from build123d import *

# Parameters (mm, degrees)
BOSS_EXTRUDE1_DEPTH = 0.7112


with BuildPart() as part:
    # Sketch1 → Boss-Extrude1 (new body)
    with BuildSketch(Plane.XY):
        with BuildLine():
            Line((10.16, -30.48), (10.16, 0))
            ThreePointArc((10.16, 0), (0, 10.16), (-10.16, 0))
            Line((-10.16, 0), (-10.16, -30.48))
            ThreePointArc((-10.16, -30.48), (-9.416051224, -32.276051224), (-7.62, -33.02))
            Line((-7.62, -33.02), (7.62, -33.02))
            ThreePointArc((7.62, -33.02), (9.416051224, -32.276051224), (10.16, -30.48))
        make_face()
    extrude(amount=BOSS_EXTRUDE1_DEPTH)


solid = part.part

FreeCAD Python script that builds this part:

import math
import FreeCAD as App
import Part
import Sketcher
Q = App.Units.Quantity

doc = App.newDocument("Part")
body = doc.addObject("PartDesign::Body", "Body")

# Sketch on XY plane
sketch1 = doc.addObject("Sketcher::SketchObject", "Sketch")
body.addObject(sketch1)
sketch1.AttachmentSupport = (doc.XY_Plane, [""])
sketch1.MapMode = "FlatFace"
sketch1.addGeometry([
    Part.LineSegment(App.Vector(10.2, -30.5, 0), App.Vector(10.2, 0, 0)),  # 0
    Part.ArcOfCircle(Part.Circle(App.Vector(0, 0, 0), App.Vector(0, 0, 1), 10.2), math.radians(0), math.radians(180)),  # 1
    Part.LineSegment(App.Vector(-10.2, 0, 0), App.Vector(-10.2, -30.5, 0)),  # 2
    Part.ArcOfCircle(Part.Circle(App.Vector(-7.6, -30.5, 0), App.Vector(0, 0, 1), 2.5), math.radians(-180), math.radians(-90)),  # 3
    Part.LineSegment(App.Vector(-7.6, -33, 0), App.Vector(7.6, -33, 0)),  # 4
    Part.ArcOfCircle(Part.Circle(App.Vector(7.6, -30.5, 0), App.Vector(0, 0, 1), 2.5), math.radians(-90), math.radians(0)),  # 5
], False)
sketch1.addConstraint([
    Sketcher.Constraint("Tangent", 0, 2, 1, 1),
    Sketcher.Constraint("Tangent", 1, 2, 2, 1),
    Sketcher.Constraint("Tangent", 2, 2, 3, 1),
    Sketcher.Constraint("Tangent", 3, 2, 4, 1),
    Sketcher.Constraint("Tangent", 4, 2, 5, 1),
    Sketcher.Constraint("Tangent", 5, 2, 0, 1),
    Sketcher.Constraint("Vertical", 0),
    Sketcher.Constraint("Vertical", 2),
    Sketcher.Constraint("Horizontal", 4),
    Sketcher.Constraint("Coincident", 1, 3, -1, 1),
    Sketcher.Constraint("Equal", 3, 5),
    Sketcher.Constraint("Radius", 1, Q("0.4 in")),
    Sketcher.Constraint("Radius", 3, Q("0.1 in")),
    Sketcher.Constraint("DistanceY", 0, 1, 0, 2, Q("1.2 in")),
])
pad1 = doc.addObject("PartDesign::Pad", "Pad")
body.addObject(pad1)
pad1.Profile = sketch1
pad1.Length = Q("0.028 in")

doc.recompute()
